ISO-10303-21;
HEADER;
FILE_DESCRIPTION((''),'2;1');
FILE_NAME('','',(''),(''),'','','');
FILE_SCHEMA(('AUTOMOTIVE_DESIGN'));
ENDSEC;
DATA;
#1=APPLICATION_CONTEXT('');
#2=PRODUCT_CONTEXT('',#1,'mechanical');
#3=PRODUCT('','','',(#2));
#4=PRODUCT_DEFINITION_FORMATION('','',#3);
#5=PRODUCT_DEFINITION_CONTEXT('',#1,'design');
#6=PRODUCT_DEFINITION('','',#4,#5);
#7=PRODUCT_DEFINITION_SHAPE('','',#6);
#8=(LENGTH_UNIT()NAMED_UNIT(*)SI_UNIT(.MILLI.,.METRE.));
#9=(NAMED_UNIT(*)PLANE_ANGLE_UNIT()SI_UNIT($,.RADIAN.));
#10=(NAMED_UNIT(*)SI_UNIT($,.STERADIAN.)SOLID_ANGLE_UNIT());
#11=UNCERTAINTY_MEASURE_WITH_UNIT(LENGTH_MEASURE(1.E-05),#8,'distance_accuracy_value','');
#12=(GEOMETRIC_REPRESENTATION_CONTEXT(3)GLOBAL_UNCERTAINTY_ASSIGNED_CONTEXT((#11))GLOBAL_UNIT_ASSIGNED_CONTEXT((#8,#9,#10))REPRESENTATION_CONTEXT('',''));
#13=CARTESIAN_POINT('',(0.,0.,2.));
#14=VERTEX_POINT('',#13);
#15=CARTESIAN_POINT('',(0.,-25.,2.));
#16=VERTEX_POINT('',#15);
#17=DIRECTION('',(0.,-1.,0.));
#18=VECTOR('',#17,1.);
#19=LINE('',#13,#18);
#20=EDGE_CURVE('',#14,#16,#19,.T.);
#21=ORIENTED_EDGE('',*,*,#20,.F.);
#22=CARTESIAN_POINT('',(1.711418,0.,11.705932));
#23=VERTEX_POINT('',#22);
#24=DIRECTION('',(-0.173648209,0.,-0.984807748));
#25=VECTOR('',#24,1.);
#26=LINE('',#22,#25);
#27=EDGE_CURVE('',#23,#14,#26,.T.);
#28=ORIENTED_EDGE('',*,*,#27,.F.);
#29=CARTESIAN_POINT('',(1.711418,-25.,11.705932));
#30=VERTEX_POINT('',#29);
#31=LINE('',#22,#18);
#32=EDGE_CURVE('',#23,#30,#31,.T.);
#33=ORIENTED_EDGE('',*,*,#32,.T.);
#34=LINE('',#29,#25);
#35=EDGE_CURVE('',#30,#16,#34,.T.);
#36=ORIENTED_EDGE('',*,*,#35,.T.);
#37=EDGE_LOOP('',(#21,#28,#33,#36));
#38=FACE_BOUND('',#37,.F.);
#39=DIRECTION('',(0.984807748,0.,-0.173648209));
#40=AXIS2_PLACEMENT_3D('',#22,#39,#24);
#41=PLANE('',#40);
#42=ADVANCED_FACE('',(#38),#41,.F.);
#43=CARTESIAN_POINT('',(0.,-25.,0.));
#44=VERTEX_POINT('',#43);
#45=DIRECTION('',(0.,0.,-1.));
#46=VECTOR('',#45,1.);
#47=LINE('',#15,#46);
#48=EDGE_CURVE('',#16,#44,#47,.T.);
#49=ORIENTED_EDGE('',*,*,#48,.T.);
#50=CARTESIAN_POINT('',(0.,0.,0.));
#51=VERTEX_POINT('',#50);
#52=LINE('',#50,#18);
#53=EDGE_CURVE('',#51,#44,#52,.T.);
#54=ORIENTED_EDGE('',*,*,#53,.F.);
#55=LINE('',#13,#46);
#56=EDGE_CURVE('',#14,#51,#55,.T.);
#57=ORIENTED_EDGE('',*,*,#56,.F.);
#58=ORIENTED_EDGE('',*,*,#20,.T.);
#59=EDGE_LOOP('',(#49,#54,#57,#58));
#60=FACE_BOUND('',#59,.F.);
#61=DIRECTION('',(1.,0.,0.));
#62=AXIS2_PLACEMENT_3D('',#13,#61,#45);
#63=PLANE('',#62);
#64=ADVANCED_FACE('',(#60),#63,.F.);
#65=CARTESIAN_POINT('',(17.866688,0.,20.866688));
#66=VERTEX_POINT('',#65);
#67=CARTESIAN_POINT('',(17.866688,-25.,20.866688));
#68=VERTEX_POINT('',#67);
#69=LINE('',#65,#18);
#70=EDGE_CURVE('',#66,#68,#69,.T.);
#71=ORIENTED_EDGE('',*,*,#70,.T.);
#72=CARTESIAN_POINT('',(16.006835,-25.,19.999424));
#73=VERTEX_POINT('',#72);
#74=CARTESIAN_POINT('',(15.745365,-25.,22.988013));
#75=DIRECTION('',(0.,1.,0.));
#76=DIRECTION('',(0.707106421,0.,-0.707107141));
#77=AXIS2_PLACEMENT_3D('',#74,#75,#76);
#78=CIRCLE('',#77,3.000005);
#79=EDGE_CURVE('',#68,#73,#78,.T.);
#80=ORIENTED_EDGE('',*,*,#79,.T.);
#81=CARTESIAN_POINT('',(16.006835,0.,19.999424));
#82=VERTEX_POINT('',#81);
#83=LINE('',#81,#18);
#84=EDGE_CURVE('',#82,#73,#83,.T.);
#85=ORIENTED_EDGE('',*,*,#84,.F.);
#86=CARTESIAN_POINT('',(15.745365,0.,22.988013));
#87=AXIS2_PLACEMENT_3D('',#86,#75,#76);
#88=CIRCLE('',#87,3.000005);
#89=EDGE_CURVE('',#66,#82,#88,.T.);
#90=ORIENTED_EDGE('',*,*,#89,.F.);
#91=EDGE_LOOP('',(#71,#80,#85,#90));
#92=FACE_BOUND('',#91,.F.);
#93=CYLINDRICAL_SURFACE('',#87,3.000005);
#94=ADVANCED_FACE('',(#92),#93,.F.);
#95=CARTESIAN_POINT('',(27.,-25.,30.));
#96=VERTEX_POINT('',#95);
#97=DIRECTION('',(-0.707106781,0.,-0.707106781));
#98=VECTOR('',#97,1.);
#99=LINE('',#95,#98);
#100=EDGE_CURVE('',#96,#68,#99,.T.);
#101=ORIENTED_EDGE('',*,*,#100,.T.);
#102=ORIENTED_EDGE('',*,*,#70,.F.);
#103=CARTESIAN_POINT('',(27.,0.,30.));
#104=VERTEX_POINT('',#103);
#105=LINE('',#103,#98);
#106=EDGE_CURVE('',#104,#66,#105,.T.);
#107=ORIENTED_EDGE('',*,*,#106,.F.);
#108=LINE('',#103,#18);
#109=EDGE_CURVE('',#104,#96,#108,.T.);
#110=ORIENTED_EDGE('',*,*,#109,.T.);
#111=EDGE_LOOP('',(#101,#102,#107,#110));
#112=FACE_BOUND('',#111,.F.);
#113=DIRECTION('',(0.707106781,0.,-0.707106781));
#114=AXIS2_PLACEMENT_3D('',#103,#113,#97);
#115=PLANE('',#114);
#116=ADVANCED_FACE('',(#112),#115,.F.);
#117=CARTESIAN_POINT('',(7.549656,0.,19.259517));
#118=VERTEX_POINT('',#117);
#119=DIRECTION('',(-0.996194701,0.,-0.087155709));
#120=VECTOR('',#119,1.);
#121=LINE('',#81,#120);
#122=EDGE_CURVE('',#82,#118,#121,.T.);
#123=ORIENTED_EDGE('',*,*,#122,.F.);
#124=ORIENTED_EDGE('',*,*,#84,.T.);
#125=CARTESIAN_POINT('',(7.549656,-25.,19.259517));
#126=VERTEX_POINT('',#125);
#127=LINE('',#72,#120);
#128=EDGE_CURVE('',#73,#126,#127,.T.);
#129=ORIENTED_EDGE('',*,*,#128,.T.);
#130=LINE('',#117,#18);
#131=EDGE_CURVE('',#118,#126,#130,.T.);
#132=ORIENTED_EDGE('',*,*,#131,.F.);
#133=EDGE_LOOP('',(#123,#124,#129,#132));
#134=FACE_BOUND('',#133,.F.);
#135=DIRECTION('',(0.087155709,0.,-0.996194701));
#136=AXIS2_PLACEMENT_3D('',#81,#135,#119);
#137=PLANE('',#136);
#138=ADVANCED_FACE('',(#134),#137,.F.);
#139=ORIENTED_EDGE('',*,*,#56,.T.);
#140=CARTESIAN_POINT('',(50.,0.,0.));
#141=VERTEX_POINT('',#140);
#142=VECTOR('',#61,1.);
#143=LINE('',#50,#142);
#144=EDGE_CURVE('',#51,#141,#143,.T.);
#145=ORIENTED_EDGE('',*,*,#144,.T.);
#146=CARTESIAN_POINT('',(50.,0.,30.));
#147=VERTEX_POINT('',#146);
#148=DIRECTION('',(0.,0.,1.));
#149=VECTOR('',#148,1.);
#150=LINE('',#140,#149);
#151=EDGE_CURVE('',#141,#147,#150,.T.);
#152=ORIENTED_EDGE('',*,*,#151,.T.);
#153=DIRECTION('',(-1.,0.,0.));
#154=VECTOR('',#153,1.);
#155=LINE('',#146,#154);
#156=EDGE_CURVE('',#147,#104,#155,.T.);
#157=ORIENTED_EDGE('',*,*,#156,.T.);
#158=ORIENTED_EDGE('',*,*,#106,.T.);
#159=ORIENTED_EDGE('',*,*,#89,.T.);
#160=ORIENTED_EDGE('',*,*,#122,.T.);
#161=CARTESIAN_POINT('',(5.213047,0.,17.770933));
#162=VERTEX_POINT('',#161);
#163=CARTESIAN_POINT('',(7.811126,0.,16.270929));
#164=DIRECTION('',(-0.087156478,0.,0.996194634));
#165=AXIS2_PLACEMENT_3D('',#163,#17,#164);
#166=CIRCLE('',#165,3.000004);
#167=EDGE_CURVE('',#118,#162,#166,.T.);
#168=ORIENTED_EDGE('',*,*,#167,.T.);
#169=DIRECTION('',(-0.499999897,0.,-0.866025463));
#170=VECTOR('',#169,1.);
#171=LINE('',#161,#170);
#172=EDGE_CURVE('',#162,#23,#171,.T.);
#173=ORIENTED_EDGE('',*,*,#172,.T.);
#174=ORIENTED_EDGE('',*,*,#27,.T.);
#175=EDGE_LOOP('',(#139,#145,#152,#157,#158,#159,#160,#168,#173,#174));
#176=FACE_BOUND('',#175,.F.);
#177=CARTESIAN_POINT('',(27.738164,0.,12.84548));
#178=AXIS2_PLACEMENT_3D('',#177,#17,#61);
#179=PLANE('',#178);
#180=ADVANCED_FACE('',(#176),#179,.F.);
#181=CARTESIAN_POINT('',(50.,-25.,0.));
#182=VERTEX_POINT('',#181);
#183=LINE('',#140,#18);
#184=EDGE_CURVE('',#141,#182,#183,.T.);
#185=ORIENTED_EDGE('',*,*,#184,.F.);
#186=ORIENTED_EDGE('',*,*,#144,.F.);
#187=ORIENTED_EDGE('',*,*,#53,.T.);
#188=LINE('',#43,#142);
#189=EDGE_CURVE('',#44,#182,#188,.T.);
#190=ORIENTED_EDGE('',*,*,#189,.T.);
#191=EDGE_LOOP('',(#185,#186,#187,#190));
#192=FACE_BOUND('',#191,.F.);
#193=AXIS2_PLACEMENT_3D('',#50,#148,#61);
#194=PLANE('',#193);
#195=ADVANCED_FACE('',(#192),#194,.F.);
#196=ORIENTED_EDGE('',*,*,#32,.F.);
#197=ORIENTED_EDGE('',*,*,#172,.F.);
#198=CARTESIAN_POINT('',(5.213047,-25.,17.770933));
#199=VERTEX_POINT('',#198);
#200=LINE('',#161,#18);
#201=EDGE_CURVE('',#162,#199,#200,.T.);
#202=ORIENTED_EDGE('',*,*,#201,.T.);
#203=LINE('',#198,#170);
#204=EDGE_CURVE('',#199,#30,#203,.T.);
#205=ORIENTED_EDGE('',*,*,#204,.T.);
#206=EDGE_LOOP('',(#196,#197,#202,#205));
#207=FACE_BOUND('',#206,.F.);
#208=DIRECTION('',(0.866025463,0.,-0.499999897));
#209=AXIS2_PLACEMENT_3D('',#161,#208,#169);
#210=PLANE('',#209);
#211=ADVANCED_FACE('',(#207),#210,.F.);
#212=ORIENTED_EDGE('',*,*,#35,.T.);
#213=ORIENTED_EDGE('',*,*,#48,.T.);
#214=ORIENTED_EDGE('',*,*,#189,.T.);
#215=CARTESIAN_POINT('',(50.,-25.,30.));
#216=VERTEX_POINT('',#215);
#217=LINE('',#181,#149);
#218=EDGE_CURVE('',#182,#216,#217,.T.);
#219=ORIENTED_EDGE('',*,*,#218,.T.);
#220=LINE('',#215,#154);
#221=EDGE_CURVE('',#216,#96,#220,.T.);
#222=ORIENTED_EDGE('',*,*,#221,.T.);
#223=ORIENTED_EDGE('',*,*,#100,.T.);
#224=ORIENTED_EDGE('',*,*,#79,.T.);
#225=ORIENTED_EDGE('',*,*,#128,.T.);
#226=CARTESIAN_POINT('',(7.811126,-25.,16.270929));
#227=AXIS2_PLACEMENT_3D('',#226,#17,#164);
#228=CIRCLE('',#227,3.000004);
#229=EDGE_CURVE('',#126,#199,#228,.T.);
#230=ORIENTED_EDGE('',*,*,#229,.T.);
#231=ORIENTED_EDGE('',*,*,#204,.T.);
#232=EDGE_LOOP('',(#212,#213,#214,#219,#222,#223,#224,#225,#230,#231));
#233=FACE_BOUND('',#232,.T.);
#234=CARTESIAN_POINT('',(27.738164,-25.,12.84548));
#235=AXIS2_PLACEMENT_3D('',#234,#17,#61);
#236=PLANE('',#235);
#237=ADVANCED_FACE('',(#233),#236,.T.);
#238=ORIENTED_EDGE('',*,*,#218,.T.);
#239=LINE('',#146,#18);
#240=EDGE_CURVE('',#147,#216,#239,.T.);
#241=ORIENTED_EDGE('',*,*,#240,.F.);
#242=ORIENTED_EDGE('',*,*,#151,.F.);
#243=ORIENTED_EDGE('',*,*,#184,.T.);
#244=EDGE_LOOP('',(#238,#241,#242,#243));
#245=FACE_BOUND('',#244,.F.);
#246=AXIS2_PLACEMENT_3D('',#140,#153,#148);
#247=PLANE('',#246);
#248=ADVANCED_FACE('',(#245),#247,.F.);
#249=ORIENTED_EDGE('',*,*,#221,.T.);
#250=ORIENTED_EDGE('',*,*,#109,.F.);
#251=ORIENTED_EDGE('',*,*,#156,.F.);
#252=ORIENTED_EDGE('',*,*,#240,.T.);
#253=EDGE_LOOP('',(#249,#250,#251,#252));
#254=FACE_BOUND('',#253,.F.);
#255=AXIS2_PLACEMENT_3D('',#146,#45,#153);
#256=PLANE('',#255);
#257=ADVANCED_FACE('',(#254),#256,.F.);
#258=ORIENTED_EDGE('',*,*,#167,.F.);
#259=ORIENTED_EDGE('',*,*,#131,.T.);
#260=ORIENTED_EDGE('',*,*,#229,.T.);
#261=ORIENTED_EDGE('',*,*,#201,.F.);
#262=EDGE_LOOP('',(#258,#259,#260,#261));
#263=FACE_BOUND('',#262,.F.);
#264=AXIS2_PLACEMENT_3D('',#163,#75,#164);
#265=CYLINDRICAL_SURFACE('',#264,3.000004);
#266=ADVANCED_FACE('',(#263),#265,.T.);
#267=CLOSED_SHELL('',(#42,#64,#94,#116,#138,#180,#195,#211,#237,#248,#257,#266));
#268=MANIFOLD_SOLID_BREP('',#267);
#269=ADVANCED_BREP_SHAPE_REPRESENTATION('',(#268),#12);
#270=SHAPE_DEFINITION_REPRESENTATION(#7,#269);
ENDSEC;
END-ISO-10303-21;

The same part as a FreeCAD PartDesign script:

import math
import FreeCAD as App
import Part
import Sketcher
Q = App.Units.Quantity

doc = App.newDocument("Part")
body = doc.addObject("PartDesign::Body", "Body")

# Sketch on XZ plane
sketch1 = doc.addObject("Sketcher::SketchObject", "Sketch")
body.addObject(sketch1)
sketch1.AttachmentSupport = (doc.XZ_Plane, [""])
sketch1.MapMode = "FlatFace"
sketch1.addGeometry(Part.LineSegment(App.Vector(0, 2, 0), App.Vector(0, 0, 0)), False)
sketch1.addGeometry(Part.LineSegment(App.Vector(0, 0, 0), App.Vector(50, 0, 0)), False)
sketch1.addGeometry(Part.LineSegment(App.Vector(50, 0, 0), App.Vector(50, 30, 0)), False)
sketch1.addGeometry(Part.LineSegment(App.Vector(50, 30, 0), App.Vector(27, 30, 0)), False)
sketch1.addGeometry(Part.LineSegment(App.Vector(27, 30, 0), App.Vector(17.9, 20.9, 0)), False)
sketch1.addGeometry(Part.ArcOfCircle(Part.Circle(App.Vector(15.7, 23, 0), App.Vector(0, 0, 1), 3), math.radians(-85), math.radians(-45)), False)
sketch1.addGeometry(Part.LineSegment(App.Vector(16, 20, 0), App.Vector(7.5, 19.3, 0)), False)
sketch1.addGeometry(Part.ArcOfCircle(Part.Circle(App.Vector(7.8, 16.3, 0), App.Vector(0, 0, 1), 3), math.radians(95), math.radians(150)), False)
sketch1.addGeometry(Part.LineSegment(App.Vector(5.2, 17.8, 0), App.Vector(1.7, 11.7, 0)), False)
sketch1.addGeometry(Part.LineSegment(App.Vector(1.7, 11.7, 0), App.Vector(0, 2, 0)), False)
sketch1.addConstraint(Sketcher.Constraint("Coincident", 0, 2, 1, 1))
sketch1.addConstraint(Sketcher.Constraint("Coincident", 1, 2, 2, 1))
sketch1.addConstraint(Sketcher.Constraint("Coincident", 2, 2, 3, 1))
sketch1.addConstraint(Sketcher.Constraint("Coincident", 3, 2, 4, 1))
sketch1.addConstraint(Sketcher.Constraint("Tangent", 4, 2, 5, 2))
sketch1.addConstraint(Sketcher.Constraint("Tangent", 5, 1, 6, 1))
sketch1.addConstraint(Sketcher.Constraint("Tangent", 6, 2, 7, 1))
sketch1.addConstraint(Sketcher.Constraint("Tangent", 7, 2, 8, 1))
sketch1.addConstraint(Sketcher.Constraint("Coincident", 8, 2, 9, 1))
sketch1.addConstraint(Sketcher.Constraint("Coincident", 9, 2, 0, 1))
sketch1.addConstraint(Sketcher.Constraint("Vertical", 0))
sketch1.addConstraint(Sketcher.Constraint("Horizontal", 1))
sketch1.addConstraint(Sketcher.Constraint("Vertical", 2))
sketch1.addConstraint(Sketcher.Constraint("Horizontal", 3))
sketch1.addConstraint(Sketcher.Constraint("Coincident", 0, 2, -1, 1))
sketch1.addConstraint(Sketcher.Constraint("Equal", 5, 7))
sketch1.addConstraint(Sketcher.Constraint("DistanceX", 1, 1, 1, 2, 50.0))
sketch1.addConstraint(Sketcher.Constraint("DistanceX", 3, 2, 3, 1, 23.0))
sketch1.addConstraint(Sketcher.Constraint("DistanceY", 0, 2, 0, 1, 2.0))
sketch1.addConstraint(Sketcher.Constraint("DistanceY", 2, 1, 2, 2, 30.0))
sketch1.addConstraint(Sketcher.Constraint("Angle", 4, Q("-135 deg")))
sketch1.addConstraint(Sketcher.Constraint("Angle", 6, Q("-175.000002 deg")))
sketch1.addConstraint(Sketcher.Constraint("Angle", 8, Q("-119.999993 deg")))
sketch1.addConstraint(Sketcher.Constraint("Angle", 9, Q("-100.000002 deg")))
sketch1.addConstraint(Sketcher.Constraint("Radius", 5, 3.000005))
sketch1.addConstraint(Sketcher.Constraint("DistanceY", 8, 2, 7, 2, 6.065001))
sketch1.addConstraint(Sketcher.Constraint("Distance", 9, 9.855662))
pad1 = doc.addObject("PartDesign::Pad", "Pad")
body.addObject(pad1)
pad1.Profile = sketch1
pad1.Length = 25

doc.recompute()
